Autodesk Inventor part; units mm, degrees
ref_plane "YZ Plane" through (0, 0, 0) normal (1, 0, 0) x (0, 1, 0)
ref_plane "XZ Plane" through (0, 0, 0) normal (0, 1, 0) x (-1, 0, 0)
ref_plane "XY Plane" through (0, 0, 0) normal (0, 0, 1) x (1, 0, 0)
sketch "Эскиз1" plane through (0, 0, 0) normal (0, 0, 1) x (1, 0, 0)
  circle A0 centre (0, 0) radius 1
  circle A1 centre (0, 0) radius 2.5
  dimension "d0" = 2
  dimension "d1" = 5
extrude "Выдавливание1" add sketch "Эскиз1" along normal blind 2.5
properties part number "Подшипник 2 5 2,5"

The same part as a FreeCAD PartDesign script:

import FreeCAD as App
import Part
import Sketcher

V = App.Vector

doc = App.newDocument("Part")
params = doc.addObject("Spreadsheet::Sheet", "Params")
for row, (alias, value) in enumerate([
    ("sketch1_diameter", "5 mm"),
    ("sketch1_diameter2", "2 mm"),
    ("pad1_length", "2.5 mm"),
], start=1):
    params.set(f"A{row}", alias)
    params.set(f"B{row}", "=" + value)
    params.setAlias(f"B{row}", alias)

body = doc.addObject("PartDesign::Body", "Body")

sketch1 = body.newObject("Sketcher::SketchObject", "Sketch")
sketch1.AttachmentSupport = (doc.getObject("XY_Plane"), [""])
sketch1.MapMode = "FlatFace"
sketch1.addGeometry([
    Part.Circle(V(0, 0, 0), V(0, 0, 1), 2.5),
    Part.Circle(V(0, 0, 0), V(0, 0, 1), 1),
], False)
sketch1.addConstraint([
    Sketcher.Constraint("Coincident", 0, 3, -1, 1),
    Sketcher.Constraint("Coincident", 1, 3, -1, 1),
    Sketcher.Constraint("Diameter", 0, 5.0),
    Sketcher.Constraint("Diameter", 1, 2.0),
])
sketch1.setExpression("Constraints[2]", "Params.sketch1_diameter")
sketch1.setExpression("Constraints[3]", "Params.sketch1_diameter2")
pad1 = body.newObject("PartDesign::Pad", "Pad")
pad1.Profile = sketch1
pad1.setExpression("Length", "Params.pad1_length")

doc.recompute()
